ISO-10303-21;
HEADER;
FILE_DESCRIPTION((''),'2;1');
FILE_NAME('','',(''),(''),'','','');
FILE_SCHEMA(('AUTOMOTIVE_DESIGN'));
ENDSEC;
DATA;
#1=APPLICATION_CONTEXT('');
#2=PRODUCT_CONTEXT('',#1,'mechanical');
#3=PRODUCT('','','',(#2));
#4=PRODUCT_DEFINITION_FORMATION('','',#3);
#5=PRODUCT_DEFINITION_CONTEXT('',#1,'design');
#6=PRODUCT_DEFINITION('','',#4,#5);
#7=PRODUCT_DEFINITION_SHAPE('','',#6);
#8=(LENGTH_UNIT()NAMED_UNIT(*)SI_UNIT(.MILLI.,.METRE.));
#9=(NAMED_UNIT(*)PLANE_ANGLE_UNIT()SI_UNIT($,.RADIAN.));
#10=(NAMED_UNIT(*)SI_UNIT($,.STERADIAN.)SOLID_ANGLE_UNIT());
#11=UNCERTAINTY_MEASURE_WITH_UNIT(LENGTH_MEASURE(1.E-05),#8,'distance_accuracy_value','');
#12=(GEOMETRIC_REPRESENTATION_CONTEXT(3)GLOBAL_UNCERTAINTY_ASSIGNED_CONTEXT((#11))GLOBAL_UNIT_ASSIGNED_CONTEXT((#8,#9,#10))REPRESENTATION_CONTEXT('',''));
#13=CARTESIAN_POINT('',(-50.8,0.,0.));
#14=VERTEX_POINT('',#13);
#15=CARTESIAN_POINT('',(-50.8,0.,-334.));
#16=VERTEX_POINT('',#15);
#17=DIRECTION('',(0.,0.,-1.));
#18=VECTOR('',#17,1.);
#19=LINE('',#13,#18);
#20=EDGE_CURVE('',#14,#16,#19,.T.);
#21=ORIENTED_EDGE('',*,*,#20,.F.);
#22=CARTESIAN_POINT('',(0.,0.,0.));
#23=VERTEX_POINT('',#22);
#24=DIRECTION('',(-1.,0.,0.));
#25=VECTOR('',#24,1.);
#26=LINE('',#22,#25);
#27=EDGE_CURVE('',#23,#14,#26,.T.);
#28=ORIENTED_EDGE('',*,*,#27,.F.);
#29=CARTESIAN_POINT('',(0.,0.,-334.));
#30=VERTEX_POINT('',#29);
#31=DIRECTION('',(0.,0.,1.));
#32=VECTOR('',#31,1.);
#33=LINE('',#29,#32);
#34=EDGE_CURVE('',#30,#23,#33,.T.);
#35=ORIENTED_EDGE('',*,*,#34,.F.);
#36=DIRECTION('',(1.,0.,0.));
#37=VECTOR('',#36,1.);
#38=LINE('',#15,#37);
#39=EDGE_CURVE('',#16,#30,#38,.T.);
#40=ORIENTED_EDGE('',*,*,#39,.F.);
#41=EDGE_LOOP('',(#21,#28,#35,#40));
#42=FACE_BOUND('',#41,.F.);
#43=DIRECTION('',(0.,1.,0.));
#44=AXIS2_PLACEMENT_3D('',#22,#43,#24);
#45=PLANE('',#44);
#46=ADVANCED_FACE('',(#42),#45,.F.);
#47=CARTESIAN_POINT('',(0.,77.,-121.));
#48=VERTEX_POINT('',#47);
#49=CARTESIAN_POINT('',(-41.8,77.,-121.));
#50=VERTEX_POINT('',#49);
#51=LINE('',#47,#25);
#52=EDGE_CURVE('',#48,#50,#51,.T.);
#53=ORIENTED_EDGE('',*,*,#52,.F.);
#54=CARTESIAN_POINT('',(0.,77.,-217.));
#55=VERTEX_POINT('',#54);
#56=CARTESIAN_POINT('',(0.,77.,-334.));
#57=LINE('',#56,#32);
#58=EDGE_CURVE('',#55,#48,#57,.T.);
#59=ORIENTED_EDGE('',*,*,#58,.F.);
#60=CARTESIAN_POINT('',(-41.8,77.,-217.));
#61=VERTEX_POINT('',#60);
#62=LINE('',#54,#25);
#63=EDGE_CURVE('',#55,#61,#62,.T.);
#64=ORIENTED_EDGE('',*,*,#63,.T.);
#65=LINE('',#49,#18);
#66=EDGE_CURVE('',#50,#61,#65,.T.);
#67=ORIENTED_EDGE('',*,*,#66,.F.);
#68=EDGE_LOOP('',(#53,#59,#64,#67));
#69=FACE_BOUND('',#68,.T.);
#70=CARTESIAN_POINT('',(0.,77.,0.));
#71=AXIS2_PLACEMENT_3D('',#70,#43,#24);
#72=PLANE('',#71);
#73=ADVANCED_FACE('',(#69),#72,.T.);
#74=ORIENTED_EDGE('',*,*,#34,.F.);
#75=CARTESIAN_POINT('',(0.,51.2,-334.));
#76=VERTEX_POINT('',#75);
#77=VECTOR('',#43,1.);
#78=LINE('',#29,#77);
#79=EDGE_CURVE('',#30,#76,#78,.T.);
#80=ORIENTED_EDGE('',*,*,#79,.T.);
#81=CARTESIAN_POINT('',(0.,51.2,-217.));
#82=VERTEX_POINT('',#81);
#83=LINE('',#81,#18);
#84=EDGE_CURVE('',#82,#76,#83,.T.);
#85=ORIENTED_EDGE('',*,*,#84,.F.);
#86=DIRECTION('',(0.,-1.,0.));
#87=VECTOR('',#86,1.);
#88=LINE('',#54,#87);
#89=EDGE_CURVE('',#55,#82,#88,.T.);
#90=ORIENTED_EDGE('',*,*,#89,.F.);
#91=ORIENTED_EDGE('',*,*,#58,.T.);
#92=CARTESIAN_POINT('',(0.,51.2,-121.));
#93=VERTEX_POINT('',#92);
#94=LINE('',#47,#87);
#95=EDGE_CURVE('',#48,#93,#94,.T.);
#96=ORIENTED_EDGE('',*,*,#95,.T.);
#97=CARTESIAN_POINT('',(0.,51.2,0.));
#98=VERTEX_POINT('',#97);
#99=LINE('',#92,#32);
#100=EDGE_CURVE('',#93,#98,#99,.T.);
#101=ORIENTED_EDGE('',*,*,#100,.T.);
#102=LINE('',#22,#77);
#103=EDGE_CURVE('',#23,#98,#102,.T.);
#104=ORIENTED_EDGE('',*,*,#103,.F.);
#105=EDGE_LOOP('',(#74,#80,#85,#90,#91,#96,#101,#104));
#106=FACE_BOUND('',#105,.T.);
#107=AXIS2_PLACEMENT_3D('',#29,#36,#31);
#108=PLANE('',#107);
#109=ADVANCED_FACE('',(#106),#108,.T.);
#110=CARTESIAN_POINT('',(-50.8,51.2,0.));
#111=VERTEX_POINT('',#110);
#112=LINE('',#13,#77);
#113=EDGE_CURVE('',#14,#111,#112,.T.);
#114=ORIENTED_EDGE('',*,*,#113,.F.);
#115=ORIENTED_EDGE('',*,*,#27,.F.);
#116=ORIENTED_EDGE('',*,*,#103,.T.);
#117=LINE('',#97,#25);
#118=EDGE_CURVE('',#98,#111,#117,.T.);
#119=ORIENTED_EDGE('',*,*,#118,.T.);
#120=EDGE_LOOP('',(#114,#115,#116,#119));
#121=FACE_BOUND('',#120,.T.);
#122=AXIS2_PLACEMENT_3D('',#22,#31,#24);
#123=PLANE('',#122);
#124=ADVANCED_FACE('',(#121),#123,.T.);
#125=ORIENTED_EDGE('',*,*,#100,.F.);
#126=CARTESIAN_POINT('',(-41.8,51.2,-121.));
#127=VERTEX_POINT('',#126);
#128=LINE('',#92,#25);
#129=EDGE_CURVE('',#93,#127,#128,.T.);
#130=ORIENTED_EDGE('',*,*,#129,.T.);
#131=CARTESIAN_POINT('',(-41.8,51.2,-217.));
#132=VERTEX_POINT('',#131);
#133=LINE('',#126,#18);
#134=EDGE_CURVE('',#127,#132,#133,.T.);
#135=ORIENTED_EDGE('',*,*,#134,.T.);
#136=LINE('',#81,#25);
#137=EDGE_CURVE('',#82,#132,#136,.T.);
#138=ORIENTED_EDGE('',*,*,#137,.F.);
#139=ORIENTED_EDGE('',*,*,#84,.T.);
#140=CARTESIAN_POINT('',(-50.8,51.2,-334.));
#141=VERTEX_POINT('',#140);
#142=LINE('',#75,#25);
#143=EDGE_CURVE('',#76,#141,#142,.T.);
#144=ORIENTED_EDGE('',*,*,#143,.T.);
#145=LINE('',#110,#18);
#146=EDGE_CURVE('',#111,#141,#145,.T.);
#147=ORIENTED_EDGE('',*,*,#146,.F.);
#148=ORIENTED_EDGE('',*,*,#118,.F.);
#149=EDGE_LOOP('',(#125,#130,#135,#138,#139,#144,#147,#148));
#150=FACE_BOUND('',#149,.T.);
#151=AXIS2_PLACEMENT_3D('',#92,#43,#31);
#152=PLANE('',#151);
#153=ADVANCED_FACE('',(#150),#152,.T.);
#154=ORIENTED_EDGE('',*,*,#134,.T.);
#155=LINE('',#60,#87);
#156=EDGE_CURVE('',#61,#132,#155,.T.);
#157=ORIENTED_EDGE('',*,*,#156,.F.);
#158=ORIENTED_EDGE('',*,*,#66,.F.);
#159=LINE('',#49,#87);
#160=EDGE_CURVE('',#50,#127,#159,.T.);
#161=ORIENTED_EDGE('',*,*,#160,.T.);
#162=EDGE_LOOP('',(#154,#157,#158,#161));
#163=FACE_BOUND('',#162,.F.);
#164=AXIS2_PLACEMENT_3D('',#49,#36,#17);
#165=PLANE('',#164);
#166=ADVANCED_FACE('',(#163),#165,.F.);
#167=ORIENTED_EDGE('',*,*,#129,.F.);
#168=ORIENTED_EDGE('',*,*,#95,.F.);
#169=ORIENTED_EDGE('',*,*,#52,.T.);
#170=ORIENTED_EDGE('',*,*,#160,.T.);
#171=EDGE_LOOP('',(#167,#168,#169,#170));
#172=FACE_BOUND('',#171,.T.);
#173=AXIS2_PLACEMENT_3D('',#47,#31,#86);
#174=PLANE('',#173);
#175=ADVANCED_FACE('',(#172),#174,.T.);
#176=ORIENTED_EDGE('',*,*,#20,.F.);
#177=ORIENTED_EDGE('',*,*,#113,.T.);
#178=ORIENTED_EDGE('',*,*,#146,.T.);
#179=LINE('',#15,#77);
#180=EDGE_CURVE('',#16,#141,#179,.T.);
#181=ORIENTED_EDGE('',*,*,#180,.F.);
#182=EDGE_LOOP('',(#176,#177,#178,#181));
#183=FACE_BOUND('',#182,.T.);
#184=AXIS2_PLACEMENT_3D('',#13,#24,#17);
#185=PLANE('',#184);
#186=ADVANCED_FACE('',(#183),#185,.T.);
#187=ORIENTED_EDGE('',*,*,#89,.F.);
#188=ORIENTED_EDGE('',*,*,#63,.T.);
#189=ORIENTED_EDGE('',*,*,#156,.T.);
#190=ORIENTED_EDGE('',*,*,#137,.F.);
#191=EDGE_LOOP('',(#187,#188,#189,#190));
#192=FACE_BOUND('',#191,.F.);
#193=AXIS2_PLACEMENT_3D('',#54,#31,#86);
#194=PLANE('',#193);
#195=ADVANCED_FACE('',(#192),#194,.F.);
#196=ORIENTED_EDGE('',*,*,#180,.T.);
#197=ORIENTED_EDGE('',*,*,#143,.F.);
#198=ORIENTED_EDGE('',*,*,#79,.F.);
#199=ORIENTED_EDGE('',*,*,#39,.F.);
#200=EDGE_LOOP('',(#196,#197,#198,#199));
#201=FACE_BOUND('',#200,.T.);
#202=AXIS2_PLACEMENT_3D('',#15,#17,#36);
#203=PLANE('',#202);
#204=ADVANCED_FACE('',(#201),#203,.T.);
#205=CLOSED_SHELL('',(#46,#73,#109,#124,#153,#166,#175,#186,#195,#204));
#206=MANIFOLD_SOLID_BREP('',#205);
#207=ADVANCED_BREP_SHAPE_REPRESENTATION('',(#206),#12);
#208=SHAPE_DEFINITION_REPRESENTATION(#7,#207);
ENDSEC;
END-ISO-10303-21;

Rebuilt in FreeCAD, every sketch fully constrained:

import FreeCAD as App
import Part
import Sketcher
from FreeCAD import Vector
Q = App.Units.Quantity

doc = App.newDocument("Part")
body = doc.addObject("PartDesign::Body", "Body")

# Sketch on XZ plane
sketch1 = doc.addObject("Sketcher::SketchObject", "Sketch")
body.addObject(sketch1)
sketch1.AttachmentSupport = (doc.XZ_Plane, [""])
sketch1.MapMode = "FlatFace"
sketch1.addGeometry([
    Part.LineSegment(Vector(-51, 0, 0), Vector(0, 0, 0)),
    Part.LineSegment(Vector(0, 0, 0), Vector(0, -334, 0)),
    Part.LineSegment(Vector(0, -334, 0), Vector(-51, -334, 0)),
    Part.LineSegment(Vector(-51, -334, 0), Vector(-51, 0, 0)),
], False)
sketch1.addConstraint([
    Sketcher.Constraint("Coincident", 0, 2, 1, 1),
    Sketcher.Constraint("Coincident", 1, 2, 2, 1),
    Sketcher.Constraint("Coincident", 2, 2, 3, 1),
    Sketcher.Constraint("Coincident", 3, 2, 0, 1),
    Sketcher.Constraint("Horizontal", 0),
    Sketcher.Constraint("Vertical", 1),
    Sketcher.Constraint("Horizontal", 2),
    Sketcher.Constraint("Vertical", 3),
    Sketcher.Constraint("Coincident", 0, 2, -1, 1),
    Sketcher.Constraint("DistanceY", 1, 2, 1, 1, Q("334 mm")),
    Sketcher.Constraint("DistanceX", 0, 1, 0, 2, Q("50.8 mm")),
])
pad1 = doc.addObject("PartDesign::Pad", "Pad")
body.addObject(pad1)
pad1.Profile = sketch1
pad1.Length = 77
pad1.Reversed = True

# Sketch on YZ plane
sketch2 = doc.addObject("Sketcher::SketchObject", "Sketch001")
body.addObject(sketch2)
sketch2.AttachmentSupport = (doc.YZ_Plane, [""])
sketch2.MapMode = "FlatFace"
sketch2.addGeometry([
    Part.LineSegment(Vector(77, -334, 0), Vector(77, -217, 0)),  # 0
    Part.LineSegment(Vector(77, -217, 0), Vector(51, -217, 0)),  # 1
    Part.LineSegment(Vector(51, -217, 0), Vector(51, -334, 0)),  # 2
    Part.LineSegment(Vector(51, -334, 0), Vector(77, -334, 0)),  # 3
    Part.LineSegment(Vector(77, -121, 0), Vector(77, 0, 0)),  # 4
    Part.LineSegment(Vector(77, 0, 0), Vector(51, 0, 0)),  # 5
    Part.LineSegment(Vector(51, 0, 0), Vector(51, -121, 0)),  # 6
    Part.LineSegment(Vector(51, -121, 0), Vector(77, -121, 0)),  # 7
], False)
sketch2.addConstraint([
    Sketcher.Constraint("Coincident", 0, 2, 1, 1),
    Sketcher.Constraint("Coincident", 1, 2, 2, 1),
    Sketcher.Constraint("Coincident", 2, 2, 3, 1),
    Sketcher.Constraint("Coincident", 3, 2, 0, 1),
    Sketcher.Constraint("Coincident", 4, 2, 5, 1),
    Sketcher.Constraint("Coincident", 5, 2, 6, 1),
    Sketcher.Constraint("Coincident", 6, 2, 7, 1),
    Sketcher.Constraint("Coincident", 7, 2, 4, 1),
    Sketcher.Constraint("Vertical", 0),
    Sketcher.Constraint("Horizontal", 1),
    Sketcher.Constraint("Vertical", 2),
    Sketcher.Constraint("Horizontal", 3),
    Sketcher.Constraint("Vertical", 4),
    Sketcher.Constraint("Horizontal", 5),
    Sketcher.Constraint("Vertical", 6),
    Sketcher.Constraint("Horizontal", 7),
    Sketcher.Constraint("PointOnObject", 4, 2, -1),
    Sketcher.Constraint("Vertical", 3, 2, 4, 2),
    Sketcher.Constraint("Vertical", 2, 2, 5, 2),
    Sketcher.Constraint("DistanceY", 0, 1, 0, 2, Q("117 mm")),
    Sketcher.Constraint("DistanceX", 1, 2, 1, 1, Q("25.8 mm")),
    Sketcher.Constraint("DistanceY", 1, 2, 6, 2, Q("96 mm")),
    Sketcher.Constraint("DistanceY", 4, 1, 4, 2, Q("121 mm")),
    Sketcher.Constraint("DistanceX", -1, 1, 0, 2, Q("77 mm")),
])
pocket1 = doc.addObject("PartDesign::Pocket", "Pocket")
body.addObject(pocket1)
pocket1.Profile = sketch2
pocket1.Length = 52.8

# Sketch on XZ plane
sketch3 = doc.addObject("Sketcher::SketchObject", "Sketch002")
body.addObject(sketch3)
sketch3.AttachmentSupport = (doc.XZ_Plane, [""])
sketch3.MapMode = "FlatFace"
sketch3.AttachmentOffset = App.Placement(Vector(0, 0, -77), App.Rotation())
sketch3.addGeometry([
    Part.LineSegment(Vector(-42, -217, 0), Vector(-51, -217, 0)),
    Part.LineSegment(Vector(-51, -217, 0), Vector(-51, -121, 0)),
    Part.LineSegment(Vector(-51, -121, 0), Vector(-42, -121, 0)),
    Part.LineSegment(Vector(-42, -121, 0), Vector(-42, -217, 0)),
], False)
sketch3.addConstraint([
    Sketcher.Constraint("Coincident", 0, 2, 1, 1),
    Sketcher.Constraint("Coincident", 1, 2, 2, 1),
    Sketcher.Constraint("Coincident", 2, 2, 3, 1),
    Sketcher.Constraint("Coincident", 3, 2, 0, 1),
    Sketcher.Constraint("Horizontal", 0),
    Sketcher.Constraint("Vertical", 1),
    Sketcher.Constraint("Horizontal", 2),
    Sketcher.Constraint("Vertical", 3),
    Sketcher.Constraint("DistanceX", 0, 2, 0, 1, Q("9 mm")),
    Sketcher.Constraint("DistanceY", 1, 1, 1, 2, Q("96 mm")),
    Sketcher.Constraint("DistanceY", 0, 2, -1, 1, Q("217 mm")),
    Sketcher.Constraint("DistanceX", 0, 2, -1, 1, Q("50.8 mm")),
])
pocket2 = doc.addObject("PartDesign::Pocket", "Pocket001")
body.addObject(pocket2)
pocket2.Profile = sketch3
pocket2.Length = 25.8
pocket2.Reversed = True

doc.recompute()
